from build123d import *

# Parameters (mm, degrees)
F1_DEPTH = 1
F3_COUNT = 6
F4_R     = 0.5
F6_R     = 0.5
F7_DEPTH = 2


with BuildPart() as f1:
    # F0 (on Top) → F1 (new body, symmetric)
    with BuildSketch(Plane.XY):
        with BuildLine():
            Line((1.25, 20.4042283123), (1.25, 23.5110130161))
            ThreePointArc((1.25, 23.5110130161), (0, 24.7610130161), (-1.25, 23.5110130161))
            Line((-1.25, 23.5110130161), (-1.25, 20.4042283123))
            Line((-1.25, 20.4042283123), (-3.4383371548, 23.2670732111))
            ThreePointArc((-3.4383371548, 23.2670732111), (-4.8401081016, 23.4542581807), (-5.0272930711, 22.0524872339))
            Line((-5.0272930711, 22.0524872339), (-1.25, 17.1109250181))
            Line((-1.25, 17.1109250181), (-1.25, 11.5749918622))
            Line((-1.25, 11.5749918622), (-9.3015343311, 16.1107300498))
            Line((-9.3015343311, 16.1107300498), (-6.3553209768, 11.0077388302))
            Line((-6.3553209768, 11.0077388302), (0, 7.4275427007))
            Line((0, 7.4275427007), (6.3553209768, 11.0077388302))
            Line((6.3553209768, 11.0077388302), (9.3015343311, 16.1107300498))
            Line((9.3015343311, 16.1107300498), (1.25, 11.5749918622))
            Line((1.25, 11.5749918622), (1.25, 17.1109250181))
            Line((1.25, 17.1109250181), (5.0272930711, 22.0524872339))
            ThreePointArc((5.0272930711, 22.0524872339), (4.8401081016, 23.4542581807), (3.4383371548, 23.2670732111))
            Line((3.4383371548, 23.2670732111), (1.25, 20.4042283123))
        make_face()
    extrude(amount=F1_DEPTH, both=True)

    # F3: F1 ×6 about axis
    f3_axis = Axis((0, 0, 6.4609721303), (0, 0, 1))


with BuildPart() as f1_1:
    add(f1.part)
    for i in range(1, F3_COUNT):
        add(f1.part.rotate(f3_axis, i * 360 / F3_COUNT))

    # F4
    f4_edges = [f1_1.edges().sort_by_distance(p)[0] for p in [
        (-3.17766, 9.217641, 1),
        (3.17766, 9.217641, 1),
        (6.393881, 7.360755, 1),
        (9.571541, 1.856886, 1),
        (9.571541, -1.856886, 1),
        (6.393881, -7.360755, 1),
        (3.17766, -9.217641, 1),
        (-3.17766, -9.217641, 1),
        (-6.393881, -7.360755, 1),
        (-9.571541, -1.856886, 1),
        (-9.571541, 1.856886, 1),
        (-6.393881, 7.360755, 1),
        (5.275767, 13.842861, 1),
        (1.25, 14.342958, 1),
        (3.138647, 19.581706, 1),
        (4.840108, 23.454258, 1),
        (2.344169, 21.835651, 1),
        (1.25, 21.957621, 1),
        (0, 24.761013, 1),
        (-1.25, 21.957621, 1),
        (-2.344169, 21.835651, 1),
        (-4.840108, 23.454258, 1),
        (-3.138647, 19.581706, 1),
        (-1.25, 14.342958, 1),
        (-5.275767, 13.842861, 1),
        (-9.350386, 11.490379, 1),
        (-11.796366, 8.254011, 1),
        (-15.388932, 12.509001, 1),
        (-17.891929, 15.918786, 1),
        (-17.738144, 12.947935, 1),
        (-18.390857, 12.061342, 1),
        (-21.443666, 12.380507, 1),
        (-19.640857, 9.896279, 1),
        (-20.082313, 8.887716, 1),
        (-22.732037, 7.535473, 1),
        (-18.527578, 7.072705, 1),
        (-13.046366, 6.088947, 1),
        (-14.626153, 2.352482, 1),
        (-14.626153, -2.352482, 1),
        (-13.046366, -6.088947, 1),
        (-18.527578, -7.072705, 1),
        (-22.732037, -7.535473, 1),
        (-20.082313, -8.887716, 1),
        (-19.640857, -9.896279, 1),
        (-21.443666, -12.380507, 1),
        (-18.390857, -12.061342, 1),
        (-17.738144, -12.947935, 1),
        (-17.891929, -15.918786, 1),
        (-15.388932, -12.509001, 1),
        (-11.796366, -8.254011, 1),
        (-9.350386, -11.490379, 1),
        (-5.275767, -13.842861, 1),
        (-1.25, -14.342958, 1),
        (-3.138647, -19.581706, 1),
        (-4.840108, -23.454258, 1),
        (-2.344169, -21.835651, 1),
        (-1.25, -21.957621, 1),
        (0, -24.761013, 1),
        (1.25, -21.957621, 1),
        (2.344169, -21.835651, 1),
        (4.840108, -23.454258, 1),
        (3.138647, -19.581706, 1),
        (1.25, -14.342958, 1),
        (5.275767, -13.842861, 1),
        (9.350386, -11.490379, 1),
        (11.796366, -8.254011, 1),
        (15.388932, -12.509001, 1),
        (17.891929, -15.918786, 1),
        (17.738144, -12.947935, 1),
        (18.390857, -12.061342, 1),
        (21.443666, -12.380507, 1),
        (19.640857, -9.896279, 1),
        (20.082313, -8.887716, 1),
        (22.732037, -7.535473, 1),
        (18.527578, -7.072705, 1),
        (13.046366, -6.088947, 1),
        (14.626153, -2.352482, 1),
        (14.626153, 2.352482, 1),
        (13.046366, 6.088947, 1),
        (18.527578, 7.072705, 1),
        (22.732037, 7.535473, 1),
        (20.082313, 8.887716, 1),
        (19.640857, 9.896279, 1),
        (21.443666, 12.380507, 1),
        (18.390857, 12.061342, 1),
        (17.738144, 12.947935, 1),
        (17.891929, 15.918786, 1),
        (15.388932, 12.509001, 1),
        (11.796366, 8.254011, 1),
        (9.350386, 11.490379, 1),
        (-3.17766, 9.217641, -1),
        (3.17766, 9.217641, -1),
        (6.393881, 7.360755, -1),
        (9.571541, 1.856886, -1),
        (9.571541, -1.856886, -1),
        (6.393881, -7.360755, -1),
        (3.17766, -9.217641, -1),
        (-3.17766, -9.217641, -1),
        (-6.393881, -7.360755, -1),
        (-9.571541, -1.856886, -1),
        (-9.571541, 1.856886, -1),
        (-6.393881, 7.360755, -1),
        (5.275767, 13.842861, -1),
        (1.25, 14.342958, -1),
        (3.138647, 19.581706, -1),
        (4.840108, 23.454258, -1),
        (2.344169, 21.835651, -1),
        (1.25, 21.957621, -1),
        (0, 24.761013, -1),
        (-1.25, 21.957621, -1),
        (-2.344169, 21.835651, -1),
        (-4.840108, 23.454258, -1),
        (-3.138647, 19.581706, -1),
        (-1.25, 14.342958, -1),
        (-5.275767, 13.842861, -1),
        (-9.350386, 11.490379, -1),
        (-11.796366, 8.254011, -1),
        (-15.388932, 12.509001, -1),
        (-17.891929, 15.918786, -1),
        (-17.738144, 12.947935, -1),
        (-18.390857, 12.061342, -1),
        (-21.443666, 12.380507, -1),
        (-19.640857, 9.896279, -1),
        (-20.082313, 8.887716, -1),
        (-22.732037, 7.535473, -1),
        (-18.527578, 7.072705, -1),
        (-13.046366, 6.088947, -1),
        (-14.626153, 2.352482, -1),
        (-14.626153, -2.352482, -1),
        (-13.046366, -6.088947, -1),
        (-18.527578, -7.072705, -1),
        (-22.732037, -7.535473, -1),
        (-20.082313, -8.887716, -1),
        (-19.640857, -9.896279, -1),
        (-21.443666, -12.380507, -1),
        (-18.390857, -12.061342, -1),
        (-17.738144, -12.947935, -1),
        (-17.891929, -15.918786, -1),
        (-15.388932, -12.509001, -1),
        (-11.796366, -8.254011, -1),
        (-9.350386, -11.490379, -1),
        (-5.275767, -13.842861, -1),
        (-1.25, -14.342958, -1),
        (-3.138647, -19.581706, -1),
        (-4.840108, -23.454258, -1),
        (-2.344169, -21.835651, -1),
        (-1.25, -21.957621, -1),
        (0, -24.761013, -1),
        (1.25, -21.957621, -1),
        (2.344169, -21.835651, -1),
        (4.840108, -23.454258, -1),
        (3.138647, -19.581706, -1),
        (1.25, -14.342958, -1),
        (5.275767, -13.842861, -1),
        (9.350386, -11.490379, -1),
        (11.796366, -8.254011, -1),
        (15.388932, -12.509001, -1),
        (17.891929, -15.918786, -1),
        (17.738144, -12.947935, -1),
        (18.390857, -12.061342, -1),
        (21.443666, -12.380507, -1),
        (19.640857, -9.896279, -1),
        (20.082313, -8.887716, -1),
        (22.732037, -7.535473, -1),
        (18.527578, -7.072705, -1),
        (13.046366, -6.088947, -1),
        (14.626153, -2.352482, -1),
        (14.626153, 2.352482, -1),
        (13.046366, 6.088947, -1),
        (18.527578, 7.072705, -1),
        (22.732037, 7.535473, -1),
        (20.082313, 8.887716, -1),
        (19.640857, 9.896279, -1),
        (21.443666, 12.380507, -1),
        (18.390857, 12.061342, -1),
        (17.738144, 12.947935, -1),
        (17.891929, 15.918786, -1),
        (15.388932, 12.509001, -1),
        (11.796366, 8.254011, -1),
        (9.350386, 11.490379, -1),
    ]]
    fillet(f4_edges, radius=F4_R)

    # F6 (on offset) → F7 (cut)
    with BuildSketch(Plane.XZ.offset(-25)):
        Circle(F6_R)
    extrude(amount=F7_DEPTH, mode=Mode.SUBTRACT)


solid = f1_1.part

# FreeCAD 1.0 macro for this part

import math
import FreeCAD as App
import Part
import Sketcher
Q = App.Units.Quantity


def edges_at(feature, points):
    """Names of the edges that pass closest to the given points."""
    edges = feature.Shape.Edges
    near = lambda p: min(range(len(edges)), key=lambda i: edges[i].distToShape(Part.Vertex(*p))[0])
    return sorted({f"Edge{near(p) + 1}" for p in points})

doc = App.newDocument("Part")
params = doc.addObject("Spreadsheet::Sheet", "Params")
for row, (alias, value) in enumerate([
    ("sketch1_radius", "1 mm"),
    ("sketch1_radius2", "1.25 mm"),
    ("pad1_length", "2 mm"),
    ("fillet_radius", "0.5 mm"),
    ("sketch2_diameter", "1 mm"),
    ("pocket1_length", "2 mm"),
], start=1):
    params.set(f"A{row}", alias)
    params.set(f"B{row}", "=" + value)
    params.setAlias(f"B{row}", alias)

body = doc.addObject("PartDesign::Body", "Body")

# Sketch on XY plane
sketch1 = body.newObject("Sketcher::SketchObject", "Sketch")
sketch1.AttachmentSupport = (doc.getObject("XY_Plane"), [""])
sketch1.MapMode = "FlatFace"
sketch1.addGeometry([
    Part.LineSegment(App.Vector(1.25, 20.404228, 0), App.Vector(1.25, 23.511013, 0)),  # 0
    Part.ArcOfCircle(Part.Circle(App.Vector(0, 23.511013, 0), App.Vector(0, 0, 1), 1.25), math.radians(0), math.radians(180)),  # 1
    Part.LineSegment(App.Vector(-1.25, 23.511013, 0), App.Vector(-1.25, 20.404228, 0)),  # 2
    Part.LineSegment(App.Vector(-1.25, 20.404228, 0), App.Vector(-3.438337, 23.267073, 0)),  # 3
    Part.ArcOfCircle(Part.Circle(App.Vector(-4.232815, 22.65978, 0), App.Vector(0, 0, 1), 1), math.radians(37.394025), math.radians(217.394025)),  # 4
    Part.LineSegment(App.Vector(-5.027293, 22.052487, 0), App.Vector(-1.25, 17.110925, 0)),  # 5
    Part.LineSegment(App.Vector(-1.25, 17.110925, 0), App.Vector(-1.25, 11.574992, 0)),  # 6
    Part.LineSegment(App.Vector(-1.25, 11.574992, 0), App.Vector(-9.301534, 16.11073, 0)),  # 7
    Part.LineSegment(App.Vector(-9.301534, 16.11073, 0), App.Vector(-6.355321, 11.007739, 0)),  # 8
    Part.LineSegment(App.Vector(-6.355321, 11.007739, 0), App.Vector(0, 7.427543, 0)),  # 9
    Part.LineSegment(App.Vector(0, 7.427543, 0), App.Vector(6.355321, 11.007739, 0)),  # 10
    Part.LineSegment(App.Vector(6.355321, 11.007739, 0), App.Vector(9.301534, 16.11073, 0)),  # 11
    Part.LineSegment(App.Vector(9.301534, 16.11073, 0), App.Vector(1.25, 11.574992, 0)),  # 12
    Part.LineSegment(App.Vector(1.25, 11.574992, 0), App.Vector(1.25, 17.110925, 0)),  # 13
    Part.LineSegment(App.Vector(1.25, 17.110925, 0), App.Vector(5.027293, 22.052487, 0)),  # 14
    Part.ArcOfCircle(Part.Circle(App.Vector(4.232815, 22.65978, 0), App.Vector(0, 0, 1), 1), math.radians(-37.394025), math.radians(142.605975)),  # 15
    Part.LineSegment(App.Vector(3.438337, 23.267073, 0), App.Vector(1.25, 20.404228, 0)),  # 16
], False)
sketch1.addConstraint([
    Sketcher.Constraint("Tangent", 0, 2, 1, 1),
    Sketcher.Constraint("Tangent", 1, 2, 2, 1),
    Sketcher.Constraint("Coincident", 2, 2, 3, 1),
    Sketcher.Constraint("Tangent", 3, 2, 4, 1),
    Sketcher.Constraint("Tangent", 4, 2, 5, 1),
    Sketcher.Constraint("Coincident", 5, 2, 6, 1),
    Sketcher.Constraint("Coincident", 6, 2, 7, 1),
    Sketcher.Constraint("Coincident", 7, 2, 8, 1),
    Sketcher.Constraint("Coincident", 8, 2, 9, 1),
    Sketcher.Constraint("Coincident", 9, 2, 10, 1),
    Sketcher.Constraint("Coincident", 10, 2, 11, 1),
    Sketcher.Constraint("Coincident", 11, 2, 12, 1),
    Sketcher.Constraint("Coincident", 12, 2, 13, 1),
    Sketcher.Constraint("Coincident", 13, 2, 14, 1),
    Sketcher.Constraint("Tangent", 14, 2, 15, 1),
    Sketcher.Constraint("Tangent", 15, 2, 16, 1),
    Sketcher.Constraint("Coincident", 16, 2, 0, 1),
    Sketcher.Constraint("Vertical", 0),
    Sketcher.Constraint("Vertical", 2),
    Sketcher.Constraint("Vertical", 6),
    Sketcher.Constraint("Vertical", 13),
    Sketcher.Constraint("Equal", 4, 15),
    Sketcher.Constraint("Symmetric", 4, 3, 15, 3, -2),
    Sketcher.Constraint("Symmetric", 8, 2, 10, 2, -2),
    Sketcher.Constraint("Symmetric", 7, 2, 11, 2, -2),
    Sketcher.Constraint("Symmetric", 6, 2, 12, 2, -2),
    Sketcher.Constraint("Symmetric", 2, 2, 16, 2, -2),
    Sketcher.Constraint("PointOnObject", 9, 2, -2),
    Sketcher.Constraint("Parallel", 3, 5),
    Sketcher.Constraint("Parallel", 7, 9),
    Sketcher.Constraint("Parallel", 14, 16),
    Sketcher.Constraint("Vertical", 2, 2, 5, 2),
    Sketcher.Constraint("Radius", 4, Q("1 mm")),
    Sketcher.Constraint("Angle", 8, Q("-60 deg")),
    Sketcher.Constraint("Radius", 1, Q("1.25 mm")),
    Sketcher.Constraint("DistanceY", 7, 2, 2, 2, Q("4.293498 mm")),
    Sketcher.Constraint("Distance", 3, Q("3.603429 mm")),
    Sketcher.Constraint("Distance", 7, Q("9.241219 mm")),
    Sketcher.Constraint("DistanceY", 0, 1, 0, 2, Q("3.106785 mm")),
    Sketcher.Constraint("DistanceY", 6, 2, 6, 1, Q("5.535933 mm")),
    Sketcher.Constraint("DistanceY", -1, 1, 4, 3, Q("22.65978 mm")),
    Sketcher.Constraint("DistanceY", -1, 1, 2, 2, Q("20.404228 mm")),
    Sketcher.Constraint("DistanceX", 8, 2, -1, 1, Q("6.355321 mm")),
])
sketch1.setExpression("Constraints[32]", "Params.sketch1_radius")
sketch1.setExpression("Constraints[34]", "Params.sketch1_radius2")
pad1 = body.newObject("PartDesign::Pad", "Pad")
pad1.Profile = sketch1
pad1.setExpression("Length", "Params.pad1_length")
pad1.Midplane = True
body2 = doc.addObject("PartDesign::Body", "Body001")
doc.recompute()

body2.BaseFeature = body
doc.recompute()

body3 = doc.addObject("PartDesign::Body", "Body002")
body3.BaseFeature = body
body3.Placement = App.Placement(App.Vector(0, 0, 0), App.Rotation(App.Vector(0, 0, 1), 60))
boolean = body2.newObject("PartDesign::Boolean", "Boolean")
boolean.Type = "Fuse"
boolean.addObjects([body3])
doc.recompute()

body4 = doc.addObject("PartDesign::Body", "Body003")
body4.BaseFeature = body
body4.Placement = App.Placement(App.Vector(0, 0, 0), App.Rotation(App.Vector(0, 0, 1), 120))
boolean2 = body2.newObject("PartDesign::Boolean", "Boolean001")
boolean2.Type = "Fuse"
boolean2.addObjects([body4])
doc.recompute()

body5 = doc.addObject("PartDesign::Body", "Body004")
body5.BaseFeature = body
body5.Placement = App.Placement(App.Vector(0, 0, 0), App.Rotation(App.Vector(0, 0, 1), 180))
boolean3 = body2.newObject("PartDesign::Boolean", "Boolean002")
boolean3.Type = "Fuse"
boolean3.addObjects([body5])
doc.recompute()

body6 = doc.addObject("PartDesign::Body", "Body005")
body6.BaseFeature = body
body6.Placement = App.Placement(App.Vector(0, 0, 0), App.Rotation(App.Vector(0, 0, 1), 240))
boolean4 = body2.newObject("PartDesign::Boolean", "Boolean003")
boolean4.Type = "Fuse"
boolean4.addObjects([body6])
doc.recompute()

body.Placement = App.Placement(App.Vector(0, 0, 0), App.Rotation(App.Vector(0, 0, 1), 300))
boolean5 = body2.newObject("PartDesign::Boolean", "Boolean004")
boolean5.Type = "Fuse"
boolean5.addObjects([body])
doc.recompute()

fillet = body2.newObject("PartDesign::Fillet", "Fillet")
fillet.Base = (boolean5, edges_at(boolean5, [
    (-3.178, 9.218, 1),
    (3.178, 9.218, 1),
    (6.394, 7.361, 1),
    (9.572, 1.857, 1),
    (9.572, -1.857, 1),
    (6.394, -7.361, 1),
    (3.178, -9.218, 1),
    (-3.178, -9.218, 1),
    (-6.394, -7.361, 1),
    (-9.572, -1.857, 1),
    (-9.572, 1.857, 1),
    (-6.394, 7.361, 1),
    (5.276, 13.843, 1),
    (1.25, 14.343, 1),
    (3.139, 19.582, 1),
    (4.84, 23.454, 1),
    (2.344, 21.836, 1),
    (1.25, 21.958, 1),
    (0, 24.761, 1),
    (-1.25, 21.958, 1),
    (-2.344, 21.836, 1),
    (-4.84, 23.454, 1),
    (-3.139, 19.582, 1),
    (-1.25, 14.343, 1),
    (-5.276, 13.843, 1),
    (-9.35, 11.49, 1),
    (-11.796, 8.254, 1),
    (-15.389, 12.509, 1),
    (-17.892, 15.919, 1),
    (-17.738, 12.948, 1),
    (-18.391, 12.061, 1),
    (-21.444, 12.381, 1),
    (-19.641, 9.896, 1),
    (-20.082, 8.888, 1),
    (-22.732, 7.535, 1),
    (-18.528, 7.073, 1),
    (-13.046, 6.089, 1),
    (-14.626, 2.352, 1),
    (-14.626, -2.352, 1),
    (-13.046, -6.089, 1),
    (-18.528, -7.073, 1),
    (-22.732, -7.535, 1),
    (-20.082, -8.888, 1),
    (-19.641, -9.896, 1),
    (-21.444, -12.381, 1),
    (-18.391, -12.061, 1),
    (-17.738, -12.948, 1),
    (-17.892, -15.919, 1),
    (-15.389, -12.509, 1),
    (-11.796, -8.254, 1),
    (-9.35, -11.49, 1),
    (-5.276, -13.843, 1),
    (-1.25, -14.343, 1),
    (-3.139, -19.582, 1),
    (-4.84, -23.454, 1),
    (-2.344, -21.836, 1),
    (-1.25, -21.958, 1),
    (0, -24.761, 1),
    (1.25, -21.958, 1),
    (2.344, -21.836, 1),
    (4.84, -23.454, 1),
    (3.139, -19.582, 1),
    (1.25, -14.343, 1),
    (5.276, -13.843, 1),
    (9.35, -11.49, 1),
    (11.796, -8.254, 1),
    (15.389, -12.509, 1),
    (17.892, -15.919, 1),
    (17.738, -12.948, 1),
    (18.391, -12.061, 1),
    (21.444, -12.381, 1),
    (19.641, -9.896, 1),
    (20.082, -8.888, 1),
    (22.732, -7.535, 1),
    (18.528, -7.073, 1),
    (13.046, -6.089, 1),
    (14.626, -2.352, 1),
    (14.626, 2.352, 1),
    (13.046, 6.089, 1),
    (18.528, 7.073, 1),
    (22.732, 7.535, 1),
    (20.082, 8.888, 1),
    (19.641, 9.896, 1),
    (21.444, 12.381, 1),
    (18.391, 12.061, 1),
    (17.738, 12.948, 1),
    (17.892, 15.919, 1),
    (15.389, 12.509, 1),
    (11.796, 8.254, 1),
    (9.35, 11.49, 1),
    (-3.178, 9.218, -1),
    (3.178, 9.218, -1),
    (6.394, 7.361, -1),
    (9.572, 1.857, -1),
    (9.572, -1.857, -1),
    (6.394, -7.361, -1),
    (3.178, -9.218, -1),
    (-3.178, -9.218, -1),
    (-6.394, -7.361, -1),
    (-9.572, -1.857, -1),
    (-9.572, 1.857, -1),
    (-6.394, 7.361, -1),
    (5.276, 13.843, -1),
    (1.25, 14.343, -1),
    (3.139, 19.582, -1),
    (4.84, 23.454, -1),
    (2.344, 21.836, -1),
    (1.25, 21.958, -1),
    (0, 24.761, -1),
    (-1.25, 21.958, -1),
    (-2.344, 21.836, -1),
    (-4.84, 23.454, -1),
    (-3.139, 19.582, -1),
    (-1.25, 14.343, -1),
    (-5.276, 13.843, -1),
    (-9.35, 11.49, -1),
    (-11.796, 8.254, -1),
    (-15.389, 12.509, -1),
    (-17.892, 15.919, -1),
    (-17.738, 12.948, -1),
    (-18.391, 12.061, -1),
    (-21.444, 12.381, -1),
    (-19.641, 9.896, -1),
    (-20.082, 8.888, -1),
    (-22.732, 7.535, -1),
    (-18.528, 7.073, -1),
    (-13.046, 6.089, -1),
    (-14.626, 2.352, -1),
    (-14.626, -2.352, -1),
    (-13.046, -6.089, -1),
    (-18.528, -7.073, -1),
    (-22.732, -7.535, -1),
    (-20.082, -8.888, -1),
    (-19.641, -9.896, -1),
    (-21.444, -12.381, -1),
    (-18.391, -12.061, -1),
    (-17.738, -12.948, -1),
    (-17.892, -15.919, -1),
    (-15.389, -12.509, -1),
    (-11.796, -8.254, -1),
    (-9.35, -11.49, -1),
    (-5.276, -13.843, -1),
    (-1.25, -14.343, -1),
    (-3.139, -19.582, -1),
    (-4.84, -23.454, -1),
    (-2.344, -21.836, -1),
    (-1.25, -21.958, -1),
    (0, -24.761, -1),
    (1.25, -21.958, -1),
    (2.344, -21.836, -1),
    (4.84, -23.454, -1),
    (3.139, -19.582, -1),
    (1.25, -14.343, -1),
    (5.276, -13.843, -1),
    (9.35, -11.49, -1),
    (11.796, -8.254, -1),
    (15.389, -12.509, -1),
    (17.892, -15.919, -1),
    (17.738, -12.948, -1),
    (18.391, -12.061, -1),
    (21.444, -12.381, -1),
    (19.641, -9.896, -1),
    (20.082, -8.888, -1),
    (22.732, -7.535, -1),
    (18.528, -7.073, -1),
    (13.046, -6.089, -1),
    (14.626, -2.352, -1),
    (14.626, 2.352, -1),
    (13.046, 6.089, -1),
    (18.528, 7.073, -1),
    (22.732, 7.535, -1),
    (20.082, 8.888, -1),
    (19.641, 9.896, -1),
    (21.444, 12.381, -1),
    (18.391, 12.061, -1),
    (17.738, 12.948, -1),
    (17.892, 15.919, -1),
    (15.389, 12.509, -1),
    (11.796, 8.254, -1),
    (9.35, 11.49, -1),
]))
fillet.setExpression("Radius", "Params.fillet_radius")

# Sketch on XZ plane
sketch2 = body2.newObject("Sketcher::SketchObject", "Sketch001")
sketch2.AttachmentSupport = (doc.getObject("XZ_Plane001"), [""])
sketch2.MapMode = "FlatFace"
sketch2.AttachmentOffset = App.Placement(App.Vector(0, 0, -25), App.Rotation())
sketch2.addGeometry(Part.Circle(App.Vector(0, 0, 0), App.Vector(0, 0, 1), 0.5), False)
sketch2.addConstraint([
    Sketcher.Constraint("Coincident", 0, 3, -1, 1),
    Sketcher.Constraint("Diameter", 0, Q("1 mm")),
])
sketch2.setExpression("Constraints[1]", "Params.sketch2_diameter")
pocket1 = body2.newObject("PartDesign::Pocket", "Pocket")
pocket1.Profile = sketch2
pocket1.setExpression("Length", "Params.pocket1_length")
pocket1.Reversed = True

doc.recompute()
